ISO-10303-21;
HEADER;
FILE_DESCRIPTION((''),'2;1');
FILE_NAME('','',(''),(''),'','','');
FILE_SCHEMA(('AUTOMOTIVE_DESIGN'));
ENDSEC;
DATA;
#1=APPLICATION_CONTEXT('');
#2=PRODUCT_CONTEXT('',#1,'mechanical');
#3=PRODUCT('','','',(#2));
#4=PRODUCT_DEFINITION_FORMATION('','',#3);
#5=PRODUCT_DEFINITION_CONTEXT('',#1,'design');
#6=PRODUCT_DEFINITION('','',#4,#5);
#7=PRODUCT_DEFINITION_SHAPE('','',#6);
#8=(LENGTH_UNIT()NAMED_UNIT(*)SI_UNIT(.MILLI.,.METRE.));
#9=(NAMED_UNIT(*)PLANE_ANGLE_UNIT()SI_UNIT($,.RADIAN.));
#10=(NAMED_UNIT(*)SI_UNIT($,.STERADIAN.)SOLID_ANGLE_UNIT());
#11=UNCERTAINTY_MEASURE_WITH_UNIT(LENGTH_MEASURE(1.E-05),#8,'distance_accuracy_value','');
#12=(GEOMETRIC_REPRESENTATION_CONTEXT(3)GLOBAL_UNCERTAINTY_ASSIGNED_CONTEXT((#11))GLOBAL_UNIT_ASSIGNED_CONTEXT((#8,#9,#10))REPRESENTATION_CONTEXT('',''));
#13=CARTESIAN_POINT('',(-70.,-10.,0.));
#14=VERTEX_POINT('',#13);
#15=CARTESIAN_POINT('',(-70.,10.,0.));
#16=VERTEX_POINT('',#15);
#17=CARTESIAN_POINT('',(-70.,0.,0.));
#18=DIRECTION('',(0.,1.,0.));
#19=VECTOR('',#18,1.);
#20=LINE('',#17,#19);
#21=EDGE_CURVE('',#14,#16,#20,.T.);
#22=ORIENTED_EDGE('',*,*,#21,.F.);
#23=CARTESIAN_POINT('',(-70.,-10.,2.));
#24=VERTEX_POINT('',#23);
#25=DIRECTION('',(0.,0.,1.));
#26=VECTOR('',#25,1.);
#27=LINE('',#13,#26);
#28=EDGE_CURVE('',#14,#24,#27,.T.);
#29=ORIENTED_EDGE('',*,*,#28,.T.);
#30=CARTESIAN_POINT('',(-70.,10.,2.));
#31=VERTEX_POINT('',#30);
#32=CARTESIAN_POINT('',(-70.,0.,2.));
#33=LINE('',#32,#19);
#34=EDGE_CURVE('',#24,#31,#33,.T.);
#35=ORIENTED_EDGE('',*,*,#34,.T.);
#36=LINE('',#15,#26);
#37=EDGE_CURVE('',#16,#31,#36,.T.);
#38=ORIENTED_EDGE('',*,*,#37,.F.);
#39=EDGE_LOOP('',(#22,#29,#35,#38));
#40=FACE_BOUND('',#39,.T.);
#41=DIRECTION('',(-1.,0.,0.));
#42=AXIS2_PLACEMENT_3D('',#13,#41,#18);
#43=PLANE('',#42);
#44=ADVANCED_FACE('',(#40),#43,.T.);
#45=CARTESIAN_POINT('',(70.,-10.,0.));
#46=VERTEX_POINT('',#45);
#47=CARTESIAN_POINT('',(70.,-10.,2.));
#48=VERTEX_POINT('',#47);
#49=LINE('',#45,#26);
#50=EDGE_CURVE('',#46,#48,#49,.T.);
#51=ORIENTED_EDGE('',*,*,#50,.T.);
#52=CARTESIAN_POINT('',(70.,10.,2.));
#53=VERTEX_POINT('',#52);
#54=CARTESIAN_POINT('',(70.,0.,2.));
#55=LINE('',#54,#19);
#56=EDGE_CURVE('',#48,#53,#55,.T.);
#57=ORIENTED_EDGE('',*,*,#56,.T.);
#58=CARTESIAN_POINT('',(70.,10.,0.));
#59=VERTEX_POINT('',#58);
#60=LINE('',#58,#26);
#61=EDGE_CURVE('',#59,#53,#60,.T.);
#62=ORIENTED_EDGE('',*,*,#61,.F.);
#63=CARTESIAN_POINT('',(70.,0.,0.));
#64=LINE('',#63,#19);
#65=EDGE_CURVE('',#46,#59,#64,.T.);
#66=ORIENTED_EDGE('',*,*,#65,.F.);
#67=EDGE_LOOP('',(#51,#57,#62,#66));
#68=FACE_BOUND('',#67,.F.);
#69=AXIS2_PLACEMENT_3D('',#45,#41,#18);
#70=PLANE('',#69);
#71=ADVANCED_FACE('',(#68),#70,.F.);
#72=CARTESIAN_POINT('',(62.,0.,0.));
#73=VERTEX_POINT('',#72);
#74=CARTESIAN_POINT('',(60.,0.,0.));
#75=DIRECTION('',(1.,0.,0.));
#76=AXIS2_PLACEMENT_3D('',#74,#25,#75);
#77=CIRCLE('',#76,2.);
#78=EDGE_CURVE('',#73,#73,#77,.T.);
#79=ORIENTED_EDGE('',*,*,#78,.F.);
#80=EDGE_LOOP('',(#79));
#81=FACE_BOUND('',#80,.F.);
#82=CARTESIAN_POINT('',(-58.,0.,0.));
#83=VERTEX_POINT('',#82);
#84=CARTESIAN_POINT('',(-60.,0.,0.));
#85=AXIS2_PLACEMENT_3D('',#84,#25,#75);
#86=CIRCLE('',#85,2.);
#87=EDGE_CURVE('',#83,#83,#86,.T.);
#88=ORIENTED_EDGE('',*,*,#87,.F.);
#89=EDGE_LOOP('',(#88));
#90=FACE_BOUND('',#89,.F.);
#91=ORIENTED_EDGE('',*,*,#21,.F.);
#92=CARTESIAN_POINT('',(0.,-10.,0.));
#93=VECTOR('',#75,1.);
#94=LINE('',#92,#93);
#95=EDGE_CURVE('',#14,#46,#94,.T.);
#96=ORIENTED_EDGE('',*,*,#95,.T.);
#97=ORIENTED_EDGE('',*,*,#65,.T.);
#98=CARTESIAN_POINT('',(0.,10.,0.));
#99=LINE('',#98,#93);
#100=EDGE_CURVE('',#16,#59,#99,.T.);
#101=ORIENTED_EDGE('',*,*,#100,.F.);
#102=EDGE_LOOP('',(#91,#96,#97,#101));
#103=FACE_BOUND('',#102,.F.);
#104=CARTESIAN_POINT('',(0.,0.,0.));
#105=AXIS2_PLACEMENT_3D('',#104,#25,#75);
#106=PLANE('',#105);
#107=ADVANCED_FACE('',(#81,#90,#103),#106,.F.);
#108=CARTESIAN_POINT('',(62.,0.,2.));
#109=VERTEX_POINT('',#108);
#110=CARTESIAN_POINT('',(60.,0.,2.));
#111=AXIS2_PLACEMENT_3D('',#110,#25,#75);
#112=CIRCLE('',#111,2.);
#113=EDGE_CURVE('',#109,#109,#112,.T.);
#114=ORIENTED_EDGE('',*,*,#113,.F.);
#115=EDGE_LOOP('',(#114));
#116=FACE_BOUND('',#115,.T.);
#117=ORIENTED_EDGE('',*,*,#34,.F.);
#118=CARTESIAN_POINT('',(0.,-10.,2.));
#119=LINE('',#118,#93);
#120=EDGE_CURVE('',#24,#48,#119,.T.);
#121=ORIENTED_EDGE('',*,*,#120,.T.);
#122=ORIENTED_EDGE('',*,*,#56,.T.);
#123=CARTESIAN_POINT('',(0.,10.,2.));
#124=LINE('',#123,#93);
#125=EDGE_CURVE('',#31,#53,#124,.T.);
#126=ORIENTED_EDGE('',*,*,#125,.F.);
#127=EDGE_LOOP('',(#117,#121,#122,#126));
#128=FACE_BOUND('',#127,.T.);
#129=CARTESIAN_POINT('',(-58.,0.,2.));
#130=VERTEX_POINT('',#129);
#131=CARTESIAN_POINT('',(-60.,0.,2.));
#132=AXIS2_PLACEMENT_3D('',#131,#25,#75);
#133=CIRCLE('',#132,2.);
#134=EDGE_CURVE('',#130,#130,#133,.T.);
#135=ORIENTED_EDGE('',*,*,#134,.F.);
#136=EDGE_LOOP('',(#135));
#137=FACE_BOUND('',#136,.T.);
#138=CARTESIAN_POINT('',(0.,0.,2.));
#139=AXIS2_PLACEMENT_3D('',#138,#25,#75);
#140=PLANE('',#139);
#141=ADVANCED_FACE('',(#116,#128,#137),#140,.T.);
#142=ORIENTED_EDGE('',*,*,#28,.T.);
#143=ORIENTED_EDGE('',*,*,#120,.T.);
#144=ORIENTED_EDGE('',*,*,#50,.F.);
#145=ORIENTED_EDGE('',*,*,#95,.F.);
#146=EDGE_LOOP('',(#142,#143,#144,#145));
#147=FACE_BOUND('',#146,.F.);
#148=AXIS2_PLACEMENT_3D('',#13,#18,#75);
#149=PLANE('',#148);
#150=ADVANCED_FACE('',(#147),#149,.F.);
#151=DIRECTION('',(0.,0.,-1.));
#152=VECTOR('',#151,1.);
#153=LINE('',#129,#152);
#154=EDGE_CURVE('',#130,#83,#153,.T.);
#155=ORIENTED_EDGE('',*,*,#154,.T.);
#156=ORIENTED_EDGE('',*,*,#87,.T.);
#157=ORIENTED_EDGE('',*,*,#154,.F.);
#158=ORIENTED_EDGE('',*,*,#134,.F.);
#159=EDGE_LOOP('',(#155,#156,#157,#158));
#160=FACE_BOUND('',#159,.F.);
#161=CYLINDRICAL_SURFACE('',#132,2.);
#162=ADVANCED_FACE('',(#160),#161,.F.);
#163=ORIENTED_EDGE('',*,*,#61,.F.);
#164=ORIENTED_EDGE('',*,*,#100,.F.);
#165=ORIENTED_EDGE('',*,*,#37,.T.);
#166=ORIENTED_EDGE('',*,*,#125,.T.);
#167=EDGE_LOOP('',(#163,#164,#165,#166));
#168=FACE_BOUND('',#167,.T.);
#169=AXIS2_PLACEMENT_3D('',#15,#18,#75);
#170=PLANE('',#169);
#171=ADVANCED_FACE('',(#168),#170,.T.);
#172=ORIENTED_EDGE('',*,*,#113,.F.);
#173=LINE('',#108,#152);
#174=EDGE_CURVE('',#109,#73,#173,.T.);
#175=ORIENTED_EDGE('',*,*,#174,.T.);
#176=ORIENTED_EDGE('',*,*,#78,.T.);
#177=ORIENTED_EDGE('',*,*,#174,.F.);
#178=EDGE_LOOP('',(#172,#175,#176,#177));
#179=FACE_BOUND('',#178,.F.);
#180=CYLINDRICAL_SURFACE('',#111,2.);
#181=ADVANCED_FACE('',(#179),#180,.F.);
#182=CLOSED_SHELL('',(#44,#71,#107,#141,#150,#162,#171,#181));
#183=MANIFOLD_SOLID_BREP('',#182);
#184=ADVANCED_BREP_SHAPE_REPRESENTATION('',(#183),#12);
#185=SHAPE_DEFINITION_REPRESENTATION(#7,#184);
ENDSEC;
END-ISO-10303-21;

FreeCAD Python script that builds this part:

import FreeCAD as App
import Part
import Sketcher

V = App.Vector
Q = App.Units.Quantity

doc = App.newDocument("Part")
params = doc.addObject("Spreadsheet::Sheet", "Params")
for row, (alias, value) in enumerate([
    ("sketch1_width", "140 mm"),
    ("sketch1_height", "20 mm"),
    ("pad1_length", "2 mm"),
    ("sketch2_diameter", "4 mm"),
], start=1):
    params.set(f"A{row}", alias)
    params.set(f"B{row}", "=" + value)
    params.setAlias(f"B{row}", alias)

body = doc.addObject("PartDesign::Body", "Body")

sketch1 = body.newObject("Sketcher::SketchObject", "Sketch")
sketch1.AttachmentSupport = (doc.getObject("XY_Plane"), [""])
sketch1.MapMode = "FlatFace"
sketch1.addGeometry([
    Part.LineSegment(V(-70, 10, 0), V(-70, -10, 0)),
    Part.LineSegment(V(-70, -10, 0), V(70, -10, 0)),
    Part.LineSegment(V(70, -10, 0), V(70, 10, 0)),
    Part.LineSegment(V(70, 10, 0), V(-70, 10, 0)),
], False)
sketch1.addConstraint([
    Sketcher.Constraint("Coincident", 0, 2, 1, 1),
    Sketcher.Constraint("Coincident", 1, 2, 2, 1),
    Sketcher.Constraint("Coincident", 2, 2, 3, 1),
    Sketcher.Constraint("Coincident", 3, 2, 0, 1),
    Sketcher.Constraint("Vertical", 0),
    Sketcher.Constraint("Horizontal", 1),
    Sketcher.Constraint("Vertical", 2),
    Sketcher.Constraint("Horizontal", 3),
    Sketcher.Constraint("Symmetric", 0, 2, 2, 2, -1, 1),
    Sketcher.Constraint("DistanceX", 1, 1, 1, 2, Q("140 mm")),
    Sketcher.Constraint("DistanceY", 0, 2, 0, 1, Q("20 mm")),
])
sketch1.setExpression("Constraints[9]", "Params.sketch1_width")
sketch1.setExpression("Constraints[10]", "Params.sketch1_height")
pad1 = body.newObject("PartDesign::Pad", "Pad")
pad1.Profile = sketch1
pad1.setExpression("Length", "Params.pad1_length")

sketch2 = body.newObject("Sketcher::SketchObject", "Sketch001")
sketch2.AttachmentSupport = (doc.getObject("XY_Plane"), [""])
sketch2.MapMode = "FlatFace"
sketch2.AttachmentOffset = App.Placement(V(0, 0, 2), App.Rotation())
sketch2.addGeometry([
    Part.Circle(V(-60, 0, 0), V(0, 0, 1), 2),
    Part.Circle(V(60, 0, 0), V(0, 0, 1), 2),
], False)
sketch2.addConstraint([
    Sketcher.Constraint("Equal", 0, 1),
    Sketcher.Constraint("Symmetric", 0, 3, 1, 3, -1, 1),
    Sketcher.Constraint("PointOnObject", 0, 3, -1),
    Sketcher.Constraint("Diameter", 0, Q("4 mm")),
    Sketcher.Constraint("DistanceX", 0, 3, -1, 1, Q("60 mm")),
])
sketch2.setExpression("Constraints[3]", "Params.sketch2_diameter")
pocket1 = body.newObject("PartDesign::Pocket", "Pocket")
pocket1.Profile = sketch2
pocket1.Type = "ThroughAll"

doc.recompute()
